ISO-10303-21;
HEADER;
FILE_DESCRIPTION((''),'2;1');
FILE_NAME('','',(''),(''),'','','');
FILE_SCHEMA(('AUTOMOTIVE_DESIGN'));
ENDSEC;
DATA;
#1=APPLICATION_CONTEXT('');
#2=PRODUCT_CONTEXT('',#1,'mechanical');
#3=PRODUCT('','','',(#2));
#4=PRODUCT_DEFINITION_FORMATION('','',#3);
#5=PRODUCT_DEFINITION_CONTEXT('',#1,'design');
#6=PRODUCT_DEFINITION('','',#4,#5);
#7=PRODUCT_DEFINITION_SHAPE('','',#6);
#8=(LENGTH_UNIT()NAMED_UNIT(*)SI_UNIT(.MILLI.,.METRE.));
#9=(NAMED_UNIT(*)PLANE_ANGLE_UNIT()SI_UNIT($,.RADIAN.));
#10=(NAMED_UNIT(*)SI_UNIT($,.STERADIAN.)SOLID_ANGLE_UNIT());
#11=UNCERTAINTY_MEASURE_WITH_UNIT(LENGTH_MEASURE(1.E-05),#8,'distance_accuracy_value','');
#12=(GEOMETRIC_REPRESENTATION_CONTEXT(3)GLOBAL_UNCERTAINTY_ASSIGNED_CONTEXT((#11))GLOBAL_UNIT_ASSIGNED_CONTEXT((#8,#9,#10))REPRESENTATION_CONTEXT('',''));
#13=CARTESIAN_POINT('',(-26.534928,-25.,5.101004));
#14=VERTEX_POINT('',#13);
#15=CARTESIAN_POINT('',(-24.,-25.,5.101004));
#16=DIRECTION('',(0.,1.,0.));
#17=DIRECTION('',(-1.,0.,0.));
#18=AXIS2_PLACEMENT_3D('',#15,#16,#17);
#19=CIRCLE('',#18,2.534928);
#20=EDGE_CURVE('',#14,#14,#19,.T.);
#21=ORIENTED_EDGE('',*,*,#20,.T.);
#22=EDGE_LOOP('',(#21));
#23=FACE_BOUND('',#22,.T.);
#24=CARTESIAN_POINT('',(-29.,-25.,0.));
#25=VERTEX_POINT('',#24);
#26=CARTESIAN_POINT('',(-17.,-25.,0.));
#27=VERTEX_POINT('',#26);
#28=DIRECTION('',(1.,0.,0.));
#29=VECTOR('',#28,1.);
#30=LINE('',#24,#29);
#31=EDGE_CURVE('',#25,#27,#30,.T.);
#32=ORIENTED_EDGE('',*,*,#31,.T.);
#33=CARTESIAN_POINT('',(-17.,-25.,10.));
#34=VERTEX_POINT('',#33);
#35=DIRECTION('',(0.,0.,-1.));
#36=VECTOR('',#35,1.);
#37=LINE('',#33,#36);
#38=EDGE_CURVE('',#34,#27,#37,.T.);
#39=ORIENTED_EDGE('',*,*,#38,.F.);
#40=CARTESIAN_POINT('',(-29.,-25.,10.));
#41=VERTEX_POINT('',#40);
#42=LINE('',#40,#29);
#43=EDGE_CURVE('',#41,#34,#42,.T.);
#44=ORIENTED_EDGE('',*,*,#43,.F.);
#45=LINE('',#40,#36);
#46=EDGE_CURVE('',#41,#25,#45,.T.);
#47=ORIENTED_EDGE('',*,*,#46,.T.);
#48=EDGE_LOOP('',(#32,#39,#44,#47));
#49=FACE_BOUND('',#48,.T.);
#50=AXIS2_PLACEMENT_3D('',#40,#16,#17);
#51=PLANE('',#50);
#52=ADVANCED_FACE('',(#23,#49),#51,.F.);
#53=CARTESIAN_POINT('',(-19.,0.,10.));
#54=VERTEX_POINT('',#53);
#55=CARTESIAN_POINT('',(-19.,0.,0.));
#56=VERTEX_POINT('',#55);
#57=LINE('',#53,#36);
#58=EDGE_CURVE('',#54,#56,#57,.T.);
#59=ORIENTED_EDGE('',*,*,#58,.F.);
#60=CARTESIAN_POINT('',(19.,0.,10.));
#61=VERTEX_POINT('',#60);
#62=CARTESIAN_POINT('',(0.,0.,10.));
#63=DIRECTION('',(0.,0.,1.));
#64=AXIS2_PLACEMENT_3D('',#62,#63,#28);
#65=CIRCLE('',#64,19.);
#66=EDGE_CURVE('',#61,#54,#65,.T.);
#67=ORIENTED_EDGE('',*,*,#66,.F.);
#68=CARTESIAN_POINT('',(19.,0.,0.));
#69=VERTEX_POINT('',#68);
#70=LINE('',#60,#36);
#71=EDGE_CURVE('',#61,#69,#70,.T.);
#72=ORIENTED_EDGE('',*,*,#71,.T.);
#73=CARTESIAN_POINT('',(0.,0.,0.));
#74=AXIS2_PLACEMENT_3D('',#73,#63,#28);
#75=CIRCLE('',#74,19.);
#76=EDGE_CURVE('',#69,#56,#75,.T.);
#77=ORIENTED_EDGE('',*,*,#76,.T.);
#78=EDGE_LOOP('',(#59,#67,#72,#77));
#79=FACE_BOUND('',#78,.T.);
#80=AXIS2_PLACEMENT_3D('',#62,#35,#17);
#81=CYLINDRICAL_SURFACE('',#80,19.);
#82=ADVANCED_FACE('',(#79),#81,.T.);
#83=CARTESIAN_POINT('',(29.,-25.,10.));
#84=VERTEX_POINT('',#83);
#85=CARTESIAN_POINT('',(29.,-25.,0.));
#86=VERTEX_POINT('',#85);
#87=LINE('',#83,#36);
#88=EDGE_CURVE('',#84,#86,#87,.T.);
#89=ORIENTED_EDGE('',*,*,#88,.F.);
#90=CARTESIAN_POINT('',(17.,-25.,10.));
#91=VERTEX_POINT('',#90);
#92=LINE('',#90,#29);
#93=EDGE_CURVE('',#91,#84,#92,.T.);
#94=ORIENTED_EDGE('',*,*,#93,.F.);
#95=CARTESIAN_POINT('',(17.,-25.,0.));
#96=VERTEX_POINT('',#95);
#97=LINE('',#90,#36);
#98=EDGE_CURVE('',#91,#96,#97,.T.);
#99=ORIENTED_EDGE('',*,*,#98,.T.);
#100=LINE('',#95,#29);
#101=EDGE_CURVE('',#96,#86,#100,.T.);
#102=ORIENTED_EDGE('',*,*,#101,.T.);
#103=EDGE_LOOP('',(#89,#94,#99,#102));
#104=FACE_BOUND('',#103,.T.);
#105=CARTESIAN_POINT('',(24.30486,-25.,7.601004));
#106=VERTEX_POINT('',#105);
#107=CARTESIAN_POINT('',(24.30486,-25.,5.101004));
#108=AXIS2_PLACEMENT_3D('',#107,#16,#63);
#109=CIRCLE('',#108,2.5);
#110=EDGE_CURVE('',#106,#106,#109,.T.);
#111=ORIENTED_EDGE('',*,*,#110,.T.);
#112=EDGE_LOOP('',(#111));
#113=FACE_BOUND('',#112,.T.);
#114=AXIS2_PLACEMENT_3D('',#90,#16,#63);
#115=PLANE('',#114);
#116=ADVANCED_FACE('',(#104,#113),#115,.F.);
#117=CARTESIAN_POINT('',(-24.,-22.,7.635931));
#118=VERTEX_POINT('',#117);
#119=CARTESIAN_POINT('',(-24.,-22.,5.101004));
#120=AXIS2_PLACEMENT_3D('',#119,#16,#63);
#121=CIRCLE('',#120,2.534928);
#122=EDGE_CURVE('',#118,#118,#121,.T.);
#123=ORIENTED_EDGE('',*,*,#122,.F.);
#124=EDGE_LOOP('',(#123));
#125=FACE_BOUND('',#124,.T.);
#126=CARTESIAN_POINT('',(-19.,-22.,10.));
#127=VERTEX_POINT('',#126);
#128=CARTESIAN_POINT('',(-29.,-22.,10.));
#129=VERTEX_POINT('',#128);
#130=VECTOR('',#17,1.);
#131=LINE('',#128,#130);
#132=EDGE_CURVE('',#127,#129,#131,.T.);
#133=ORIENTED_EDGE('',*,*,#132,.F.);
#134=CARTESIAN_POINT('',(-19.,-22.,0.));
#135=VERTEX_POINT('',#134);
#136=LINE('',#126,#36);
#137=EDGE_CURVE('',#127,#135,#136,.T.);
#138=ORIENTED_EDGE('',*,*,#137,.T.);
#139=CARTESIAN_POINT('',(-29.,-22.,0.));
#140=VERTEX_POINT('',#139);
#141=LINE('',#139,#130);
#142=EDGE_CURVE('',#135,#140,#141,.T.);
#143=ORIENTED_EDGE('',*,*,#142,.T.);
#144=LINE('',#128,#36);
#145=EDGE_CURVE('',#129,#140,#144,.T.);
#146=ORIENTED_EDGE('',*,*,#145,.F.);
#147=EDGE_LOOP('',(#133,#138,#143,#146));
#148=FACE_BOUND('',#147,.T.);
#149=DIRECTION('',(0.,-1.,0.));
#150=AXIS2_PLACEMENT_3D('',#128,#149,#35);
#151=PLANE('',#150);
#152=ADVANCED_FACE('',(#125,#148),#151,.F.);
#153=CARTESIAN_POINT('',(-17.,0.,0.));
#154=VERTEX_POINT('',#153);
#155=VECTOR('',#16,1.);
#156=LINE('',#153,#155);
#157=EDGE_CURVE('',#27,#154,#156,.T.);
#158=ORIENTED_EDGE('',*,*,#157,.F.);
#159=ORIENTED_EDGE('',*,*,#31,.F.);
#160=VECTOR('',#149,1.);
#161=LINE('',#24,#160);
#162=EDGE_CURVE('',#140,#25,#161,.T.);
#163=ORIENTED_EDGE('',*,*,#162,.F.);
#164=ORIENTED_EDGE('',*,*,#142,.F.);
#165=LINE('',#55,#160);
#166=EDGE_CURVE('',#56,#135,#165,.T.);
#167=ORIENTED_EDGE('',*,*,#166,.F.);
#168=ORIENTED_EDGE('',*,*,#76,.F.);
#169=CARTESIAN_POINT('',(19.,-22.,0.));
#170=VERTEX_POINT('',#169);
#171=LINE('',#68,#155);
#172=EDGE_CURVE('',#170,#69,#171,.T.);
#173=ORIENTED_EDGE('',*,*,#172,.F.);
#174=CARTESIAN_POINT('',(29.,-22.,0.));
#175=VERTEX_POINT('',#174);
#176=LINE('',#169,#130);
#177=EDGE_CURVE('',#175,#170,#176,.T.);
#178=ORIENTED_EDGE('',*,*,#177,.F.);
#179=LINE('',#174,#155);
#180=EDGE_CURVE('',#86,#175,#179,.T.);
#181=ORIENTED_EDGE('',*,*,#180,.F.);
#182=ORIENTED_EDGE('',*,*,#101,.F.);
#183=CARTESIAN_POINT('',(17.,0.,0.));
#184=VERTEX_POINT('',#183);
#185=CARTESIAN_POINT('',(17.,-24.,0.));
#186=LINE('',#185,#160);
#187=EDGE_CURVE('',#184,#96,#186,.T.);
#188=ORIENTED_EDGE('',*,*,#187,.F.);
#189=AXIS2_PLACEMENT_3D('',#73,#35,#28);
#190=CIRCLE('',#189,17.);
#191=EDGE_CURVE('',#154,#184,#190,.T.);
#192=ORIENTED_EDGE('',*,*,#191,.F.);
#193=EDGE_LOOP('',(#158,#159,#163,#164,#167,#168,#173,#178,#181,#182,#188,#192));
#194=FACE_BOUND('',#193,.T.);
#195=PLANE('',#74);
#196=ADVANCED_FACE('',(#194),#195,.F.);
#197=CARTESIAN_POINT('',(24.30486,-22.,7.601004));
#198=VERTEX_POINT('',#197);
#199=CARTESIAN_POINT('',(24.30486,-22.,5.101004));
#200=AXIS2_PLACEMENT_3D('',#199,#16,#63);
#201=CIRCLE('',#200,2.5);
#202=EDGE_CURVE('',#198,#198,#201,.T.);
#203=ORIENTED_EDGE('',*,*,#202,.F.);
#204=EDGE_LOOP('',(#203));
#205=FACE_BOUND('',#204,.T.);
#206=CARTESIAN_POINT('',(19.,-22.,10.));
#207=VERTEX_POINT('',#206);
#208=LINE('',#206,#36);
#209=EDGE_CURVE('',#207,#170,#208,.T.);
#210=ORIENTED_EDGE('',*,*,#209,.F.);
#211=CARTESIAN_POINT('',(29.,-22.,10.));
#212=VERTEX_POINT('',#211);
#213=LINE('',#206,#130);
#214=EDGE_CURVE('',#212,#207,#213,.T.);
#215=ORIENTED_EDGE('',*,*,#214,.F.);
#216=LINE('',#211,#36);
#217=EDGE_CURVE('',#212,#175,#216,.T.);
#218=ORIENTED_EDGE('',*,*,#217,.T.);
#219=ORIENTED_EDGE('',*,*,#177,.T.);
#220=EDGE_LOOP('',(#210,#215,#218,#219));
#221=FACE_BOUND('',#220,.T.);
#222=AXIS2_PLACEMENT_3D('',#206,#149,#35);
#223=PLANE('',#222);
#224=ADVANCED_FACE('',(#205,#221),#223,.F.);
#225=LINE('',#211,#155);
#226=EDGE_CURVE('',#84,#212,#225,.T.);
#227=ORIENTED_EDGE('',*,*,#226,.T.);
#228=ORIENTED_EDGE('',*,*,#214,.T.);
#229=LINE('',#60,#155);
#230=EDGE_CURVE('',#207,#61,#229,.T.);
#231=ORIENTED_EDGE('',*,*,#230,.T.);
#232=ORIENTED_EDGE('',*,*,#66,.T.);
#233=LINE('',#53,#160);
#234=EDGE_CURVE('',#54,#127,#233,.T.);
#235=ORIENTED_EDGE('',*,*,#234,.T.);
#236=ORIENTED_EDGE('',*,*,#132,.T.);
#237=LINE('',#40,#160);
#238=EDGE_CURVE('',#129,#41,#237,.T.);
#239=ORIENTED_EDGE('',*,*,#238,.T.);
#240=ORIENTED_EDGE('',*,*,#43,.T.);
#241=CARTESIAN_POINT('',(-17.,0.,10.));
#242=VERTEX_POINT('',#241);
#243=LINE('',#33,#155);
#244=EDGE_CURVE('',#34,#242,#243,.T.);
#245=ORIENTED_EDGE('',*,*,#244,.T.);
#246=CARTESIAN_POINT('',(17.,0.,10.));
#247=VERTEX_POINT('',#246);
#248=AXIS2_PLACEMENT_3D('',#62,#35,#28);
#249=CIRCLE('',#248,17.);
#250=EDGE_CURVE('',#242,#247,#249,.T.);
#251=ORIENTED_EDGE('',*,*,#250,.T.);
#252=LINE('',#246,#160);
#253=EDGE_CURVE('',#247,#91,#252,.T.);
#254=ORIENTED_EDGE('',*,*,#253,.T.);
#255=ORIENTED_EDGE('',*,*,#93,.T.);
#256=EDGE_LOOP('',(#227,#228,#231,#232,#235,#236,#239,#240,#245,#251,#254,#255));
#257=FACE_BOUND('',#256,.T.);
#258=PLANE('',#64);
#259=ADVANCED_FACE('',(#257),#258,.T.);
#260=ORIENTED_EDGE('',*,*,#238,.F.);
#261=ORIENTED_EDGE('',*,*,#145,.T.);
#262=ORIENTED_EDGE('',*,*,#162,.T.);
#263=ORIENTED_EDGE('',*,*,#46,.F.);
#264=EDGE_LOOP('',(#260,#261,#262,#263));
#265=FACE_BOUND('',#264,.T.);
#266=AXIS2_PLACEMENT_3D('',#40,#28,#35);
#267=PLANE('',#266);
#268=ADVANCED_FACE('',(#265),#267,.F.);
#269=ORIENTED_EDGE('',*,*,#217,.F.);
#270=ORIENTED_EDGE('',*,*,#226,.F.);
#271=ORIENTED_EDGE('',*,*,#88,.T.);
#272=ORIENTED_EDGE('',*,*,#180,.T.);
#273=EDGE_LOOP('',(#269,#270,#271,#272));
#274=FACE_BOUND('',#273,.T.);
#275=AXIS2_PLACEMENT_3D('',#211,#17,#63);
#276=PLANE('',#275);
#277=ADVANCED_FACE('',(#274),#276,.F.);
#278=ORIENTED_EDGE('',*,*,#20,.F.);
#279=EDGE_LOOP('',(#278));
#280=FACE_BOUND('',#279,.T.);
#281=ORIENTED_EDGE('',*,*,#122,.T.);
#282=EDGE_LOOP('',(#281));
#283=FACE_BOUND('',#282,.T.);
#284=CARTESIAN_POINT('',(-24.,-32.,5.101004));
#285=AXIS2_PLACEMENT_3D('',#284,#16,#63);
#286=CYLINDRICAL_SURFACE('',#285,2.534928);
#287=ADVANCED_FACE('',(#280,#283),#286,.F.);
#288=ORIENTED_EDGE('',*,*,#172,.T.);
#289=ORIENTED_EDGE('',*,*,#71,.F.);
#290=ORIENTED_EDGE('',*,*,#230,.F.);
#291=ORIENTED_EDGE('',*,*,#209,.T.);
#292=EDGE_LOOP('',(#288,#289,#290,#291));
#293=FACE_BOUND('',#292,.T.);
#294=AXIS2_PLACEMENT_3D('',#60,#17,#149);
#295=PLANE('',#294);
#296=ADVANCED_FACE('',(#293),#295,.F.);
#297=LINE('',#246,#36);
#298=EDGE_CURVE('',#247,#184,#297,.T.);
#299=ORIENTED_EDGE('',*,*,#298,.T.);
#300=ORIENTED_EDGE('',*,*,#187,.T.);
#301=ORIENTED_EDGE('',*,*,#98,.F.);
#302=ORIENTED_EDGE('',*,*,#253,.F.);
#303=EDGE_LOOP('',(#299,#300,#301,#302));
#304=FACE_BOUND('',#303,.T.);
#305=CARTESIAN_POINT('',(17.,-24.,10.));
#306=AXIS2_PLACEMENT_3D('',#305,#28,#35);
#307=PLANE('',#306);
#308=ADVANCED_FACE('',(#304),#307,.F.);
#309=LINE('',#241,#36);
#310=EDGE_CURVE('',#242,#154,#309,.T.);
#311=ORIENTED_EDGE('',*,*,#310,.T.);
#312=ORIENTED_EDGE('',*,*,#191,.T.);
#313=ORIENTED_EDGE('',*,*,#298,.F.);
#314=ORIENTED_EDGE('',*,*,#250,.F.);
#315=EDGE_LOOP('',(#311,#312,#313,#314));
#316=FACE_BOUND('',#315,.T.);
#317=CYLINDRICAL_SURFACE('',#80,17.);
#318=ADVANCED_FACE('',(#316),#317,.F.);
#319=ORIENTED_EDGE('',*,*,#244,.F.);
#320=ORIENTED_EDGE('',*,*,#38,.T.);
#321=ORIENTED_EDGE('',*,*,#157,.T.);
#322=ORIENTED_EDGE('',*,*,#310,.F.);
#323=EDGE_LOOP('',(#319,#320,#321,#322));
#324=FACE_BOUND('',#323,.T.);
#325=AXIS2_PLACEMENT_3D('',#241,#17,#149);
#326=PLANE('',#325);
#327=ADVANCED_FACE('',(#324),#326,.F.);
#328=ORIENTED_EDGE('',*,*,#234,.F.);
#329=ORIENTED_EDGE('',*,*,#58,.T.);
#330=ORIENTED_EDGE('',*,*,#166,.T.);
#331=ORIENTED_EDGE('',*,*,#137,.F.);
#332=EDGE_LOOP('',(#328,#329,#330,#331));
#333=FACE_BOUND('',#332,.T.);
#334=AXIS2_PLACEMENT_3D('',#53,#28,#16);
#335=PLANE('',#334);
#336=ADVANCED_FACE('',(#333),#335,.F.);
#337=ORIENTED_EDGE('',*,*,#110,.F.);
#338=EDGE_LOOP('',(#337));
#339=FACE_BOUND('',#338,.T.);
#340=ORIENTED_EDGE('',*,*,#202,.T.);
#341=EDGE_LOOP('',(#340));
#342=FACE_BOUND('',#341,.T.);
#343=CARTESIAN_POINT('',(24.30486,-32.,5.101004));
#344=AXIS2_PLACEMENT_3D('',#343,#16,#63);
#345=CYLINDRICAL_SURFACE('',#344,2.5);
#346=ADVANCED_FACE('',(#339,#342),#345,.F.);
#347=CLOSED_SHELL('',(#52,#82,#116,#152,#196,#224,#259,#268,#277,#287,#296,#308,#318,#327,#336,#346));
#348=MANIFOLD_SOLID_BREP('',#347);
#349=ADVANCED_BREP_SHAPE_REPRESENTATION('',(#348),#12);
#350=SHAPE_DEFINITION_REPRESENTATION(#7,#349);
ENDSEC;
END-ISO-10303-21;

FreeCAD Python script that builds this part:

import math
import FreeCAD as App
import Part
import Sketcher
from FreeCAD import Vector
Q = App.Units.Quantity

doc = App.newDocument("Part")
body = doc.addObject("PartDesign::Body", "Body")

# Sketch on XY plane
sketch1 = doc.addObject("Sketcher::SketchObject", "Sketch")
body.addObject(sketch1)
sketch1.AttachmentSupport = (doc.XY_Plane, [""])
sketch1.MapMode = "FlatFace"
sketch1.addGeometry(Part.LineSegment(Vector(-17, -25, 0), Vector(-17, 0, 0)), False)
sketch1.addGeometry(Part.ArcOfCircle(Part.Circle(Vector(0, 0, 0), Vector(0, 0, 1), 17), math.radians(0), math.radians(180)), False)
sketch1.addGeometry(Part.LineSegment(Vector(17, 0, 0), Vector(17, -25, 0)), False)
sketch1.addGeometry(Part.LineSegment(Vector(17, -25, 0), Vector(29, -25, 0)), False)
sketch1.addGeometry(Part.LineSegment(Vector(29, -25, 0), Vector(29, -22, 0)), False)
sketch1.addGeometry(Part.LineSegment(Vector(29, -22, 0), Vector(19, -22, 0)), False)
sketch1.addGeometry(Part.LineSegment(Vector(19, -22, 0), Vector(19, 0, 0)), False)
sketch1.addGeometry(Part.ArcOfCircle(Part.Circle(Vector(0, 0, 0), Vector(0, 0, 1), 19), math.radians(0), math.radians(180)), False)
sketch1.addGeometry(Part.LineSegment(Vector(-19, 0, 0), Vector(-19, -22, 0)), False)
sketch1.addGeometry(Part.LineSegment(Vector(-19, -22, 0), Vector(-29, -22, 0)), False)
sketch1.addGeometry(Part.LineSegment(Vector(-29, -22, 0), Vector(-29, -25, 0)), False)
sketch1.addGeometry(Part.LineSegment(Vector(-29, -25, 0), Vector(-17, -25, 0)), False)
sketch1.addConstraint(Sketcher.Constraint("Tangent", 0, 2, 1, 2))
sketch1.addConstraint(Sketcher.Constraint("Tangent", 1, 1, 2, 1))
sketch1.addConstraint(Sketcher.Constraint("Coincident", 2, 2, 3, 1))
sketch1.addConstraint(Sketcher.Constraint("Coincident", 3, 2, 4, 1))
sketch1.addConstraint(Sketcher.Constraint("Coincident", 4, 2, 5, 1))
sketch1.addConstraint(Sketcher.Constraint("Coincident", 5, 2, 6, 1))
sketch1.addConstraint(Sketcher.Constraint("Tangent", 6, 2, 7, 1))
sketch1.addConstraint(Sketcher.Constraint("Tangent", 7, 2, 8, 1))
sketch1.addConstraint(Sketcher.Constraint("Coincident", 8, 2, 9, 1))
sketch1.addConstraint(Sketcher.Constraint("Coincident", 9, 2, 10, 1))
sketch1.addConstraint(Sketcher.Constraint("Coincident", 10, 2, 11, 1))
sketch1.addConstraint(Sketcher.Constraint("Coincident", 11, 2, 0, 1))
sketch1.addConstraint(Sketcher.Constraint("Vertical", 0))
sketch1.addConstraint(Sketcher.Constraint("Vertical", 2))
sketch1.addConstraint(Sketcher.Constraint("Horizontal", 3))
sketch1.addConstraint(Sketcher.Constraint("Vertical", 4))
sketch1.addConstraint(Sketcher.Constraint("Horizontal", 5))
sketch1.addConstraint(Sketcher.Constraint("Vertical", 6))
sketch1.addConstraint(Sketcher.Constraint("Vertical", 8))
sketch1.addConstraint(Sketcher.Constraint("Horizontal", 9))
sketch1.addConstraint(Sketcher.Constraint("Vertical", 10))
sketch1.addConstraint(Sketcher.Constraint("Horizontal", 11))
sketch1.addConstraint(Sketcher.Constraint("Coincident", 1, 3, -1, 1))
sketch1.addConstraint(Sketcher.Constraint("Coincident", 7, 3, -1, 1))
sketch1.addConstraint(Sketcher.Constraint("Symmetric", 4, 2, 9, 2, -2))
sketch1.addConstraint(Sketcher.Constraint("Horizontal", 3, 2, 10, 2))
sketch1.addConstraint(Sketcher.Constraint("Radius", 1, Q("17 mm")))
sketch1.addConstraint(Sketcher.Constraint("Radius", 7, Q("19 mm")))
sketch1.addConstraint(Sketcher.Constraint("DistanceX", 3, 1, 3, 2, Q("12 mm")))
sketch1.addConstraint(Sketcher.Constraint("DistanceY", 0, 1, 0, 2, Q("25 mm")))
sketch1.addConstraint(Sketcher.Constraint("DistanceY", 4, 1, 4, 2, Q("3 mm")))
pad1 = doc.addObject("PartDesign::Pad", "Pad")
body.addObject(pad1)
pad1.Profile = sketch1
pad1.Length = 10

# Sketch on XZ plane
sketch2 = doc.addObject("Sketcher::SketchObject", "Sketch001")
body.addObject(sketch2)
sketch2.AttachmentSupport = (doc.XZ_Plane, [""])
sketch2.MapMode = "FlatFace"
sketch2.AttachmentOffset = App.Placement(Vector(0, 0, 22), App.Rotation())
sketch2.addGeometry(Part.Circle(Vector(-24, 5.1, 0), Vector(0, 0, 1), 2.5), False)
sketch2.addGeometry(Part.Circle(Vector(24.3, 5.1, 0), Vector(0, 0, 1), 2.5), False)
sketch2.addConstraint(Sketcher.Constraint("Horizontal", 0, 3, 1, 3))
sketch2.addConstraint(Sketcher.Constraint("Diameter", 1, Q("5 mm")))
sketch2.addConstraint(Sketcher.Constraint("DistanceX", 0, 3, -1, 1, Q("24 mm")))
sketch2.addConstraint(Sketcher.Constraint("Diameter", 0, Q("5.069855 mm")))
sketch2.addConstraint(Sketcher.Constraint("DistanceX", -1, 1, 1, 3, Q("24.30486 mm")))
sketch2.addConstraint(Sketcher.Constraint("DistanceY", -1, 1, 0, 3, Q("5.101004 mm")))
pocket1 = doc.addObject("PartDesign::Pocket", "Pocket")
body.addObject(pocket1)
pocket1.Profile = sketch2
pocket1.Length = 10
pocket1.Reversed = True

doc.recompute()
